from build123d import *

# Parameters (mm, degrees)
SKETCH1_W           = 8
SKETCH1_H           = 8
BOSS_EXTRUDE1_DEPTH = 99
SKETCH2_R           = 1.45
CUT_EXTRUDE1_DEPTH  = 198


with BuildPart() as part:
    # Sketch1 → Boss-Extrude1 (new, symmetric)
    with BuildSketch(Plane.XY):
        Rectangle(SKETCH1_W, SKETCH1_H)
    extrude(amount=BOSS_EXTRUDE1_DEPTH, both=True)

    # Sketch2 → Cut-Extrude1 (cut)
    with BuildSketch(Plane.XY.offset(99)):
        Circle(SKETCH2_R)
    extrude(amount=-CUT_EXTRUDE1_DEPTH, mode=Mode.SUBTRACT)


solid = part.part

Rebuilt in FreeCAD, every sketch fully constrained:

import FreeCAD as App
import Part
import Sketcher
from FreeCAD import Vector
Q = App.Units.Quantity


def add_polygon(sketch, points):
    """Adds a closed chain of lines whose ends are joined by coincident constraints."""
    first, n = sketch.GeometryCount, len(points)
    for a, b in zip(points, points[1:] + points[:1]):
        sketch.addGeometry(Part.LineSegment(App.Vector(*a, 0), App.Vector(*b, 0)), False)
    for i in range(n):
        sketch.addConstraint(Sketcher.Constraint("Coincident", first + i, 2, first + (i + 1) % n, 1))

doc = App.newDocument("Part")
params = doc.addObject("Spreadsheet::Sheet", "Params")
for row, (alias, value) in enumerate([
    ("sketch1_width", "8 mm"),
    ("pad1_length", "198 mm"),
    ("sketch2_diameter", "2.9 mm"),
    ("pocket1_length", "198 mm"),
], start=1):
    params.set(f"A{row}", alias)
    params.set(f"B{row}", "=" + value)
    params.setAlias(f"B{row}", alias)

body = doc.addObject("PartDesign::Body", "Body")

sketch1 = body.newObject("Sketcher::SketchObject", "Sketch")
sketch1.AttachmentSupport = (doc.getObject("XY_Plane"), [""])
sketch1.MapMode = "FlatFace"
add_polygon(sketch1, [(-4, 4), (-4, -4), (4, -4), (4, 4)])
sketch1.addConstraint(Sketcher.Constraint("Vertical", 0))
sketch1.addConstraint(Sketcher.Constraint("Horizontal", 1))
sketch1.addConstraint(Sketcher.Constraint("Vertical", 2))
sketch1.addConstraint(Sketcher.Constraint("Horizontal", 3))
sketch1.addConstraint(Sketcher.Constraint("Symmetric", 0, 2, 2, 2, -1, 1))
sketch1.addConstraint(Sketcher.Constraint("Equal", 3, 0))
sketch1.addConstraint(Sketcher.Constraint("DistanceX", 1, 1, 1, 2, Q("8 mm")))
sketch1.setExpression("Constraints[10]", "Params.sketch1_width")
pad1 = body.newObject("PartDesign::Pad", "Pad")
pad1.Profile = sketch1
pad1.setExpression("Length", "Params.pad1_length")
pad1.Midplane = True

sketch2 = body.newObject("Sketcher::SketchObject", "Sketch001")
sketch2.AttachmentSupport = (doc.getObject("XY_Plane"), [""])
sketch2.MapMode = "FlatFace"
sketch2.AttachmentOffset = App.Placement(Vector(0, 0, 99), App.Rotation())
sketch2.addGeometry(Part.Circle(Vector(0, 0, 0), Vector(0, 0, 1), 1.4), False)
sketch2.addConstraint(Sketcher.Constraint("Coincident", 0, 3, -1, 1))
sketch2.addConstraint(Sketcher.Constraint("Diameter", 0, Q("2.9 mm")))
sketch2.setExpression("Constraints[1]", "Params.sketch2_diameter")
pocket1 = body.newObject("PartDesign::Pocket", "Pocket")
pocket1.Profile = sketch2
pocket1.setExpression("Length", "Params.pocket1_length")

doc.recompute()
